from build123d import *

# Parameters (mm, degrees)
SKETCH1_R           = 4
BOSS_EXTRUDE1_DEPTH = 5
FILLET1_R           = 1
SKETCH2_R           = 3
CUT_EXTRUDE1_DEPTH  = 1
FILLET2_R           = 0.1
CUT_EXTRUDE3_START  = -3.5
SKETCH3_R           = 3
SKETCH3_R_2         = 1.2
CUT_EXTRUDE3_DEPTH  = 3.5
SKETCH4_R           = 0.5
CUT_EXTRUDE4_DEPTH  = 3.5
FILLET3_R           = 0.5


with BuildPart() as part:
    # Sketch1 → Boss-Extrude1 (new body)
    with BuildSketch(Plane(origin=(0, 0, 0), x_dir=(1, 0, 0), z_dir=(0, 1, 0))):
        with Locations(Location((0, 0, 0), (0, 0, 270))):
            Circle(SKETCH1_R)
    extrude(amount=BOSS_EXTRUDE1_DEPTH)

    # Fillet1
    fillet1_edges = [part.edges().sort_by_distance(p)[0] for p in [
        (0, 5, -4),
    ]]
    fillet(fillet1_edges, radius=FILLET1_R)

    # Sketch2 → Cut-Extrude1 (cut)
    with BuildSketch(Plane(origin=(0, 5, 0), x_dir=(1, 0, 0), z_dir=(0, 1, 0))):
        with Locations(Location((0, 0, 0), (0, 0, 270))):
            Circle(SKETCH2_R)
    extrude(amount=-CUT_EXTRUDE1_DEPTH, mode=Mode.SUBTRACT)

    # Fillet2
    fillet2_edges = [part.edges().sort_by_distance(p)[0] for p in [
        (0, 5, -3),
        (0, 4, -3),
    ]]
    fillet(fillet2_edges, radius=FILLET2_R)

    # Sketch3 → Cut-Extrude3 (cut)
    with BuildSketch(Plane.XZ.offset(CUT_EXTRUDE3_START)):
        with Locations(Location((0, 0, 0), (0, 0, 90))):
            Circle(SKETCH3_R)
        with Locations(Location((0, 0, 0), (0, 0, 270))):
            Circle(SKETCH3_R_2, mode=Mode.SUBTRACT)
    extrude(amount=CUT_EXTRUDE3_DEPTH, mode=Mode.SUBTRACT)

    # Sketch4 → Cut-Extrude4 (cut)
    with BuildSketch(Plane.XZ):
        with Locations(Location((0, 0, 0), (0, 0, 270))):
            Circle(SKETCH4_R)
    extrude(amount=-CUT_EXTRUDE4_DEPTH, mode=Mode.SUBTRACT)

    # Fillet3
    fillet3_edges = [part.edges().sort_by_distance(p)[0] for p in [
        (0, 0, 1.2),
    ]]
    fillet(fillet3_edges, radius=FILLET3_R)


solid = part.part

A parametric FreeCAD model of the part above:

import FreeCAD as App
import Part
import Sketcher

V = App.Vector
Q = App.Units.Quantity


def edges_at(feature, points):
    """Names of the edges that pass closest to the given points."""
    edges = feature.Shape.Edges
    near = lambda p: min(range(len(edges)), key=lambda i: edges[i].distToShape(Part.Vertex(*p))[0])
    return sorted({f"Edge{near(p) + 1}" for p in points})

doc = App.newDocument("Part")
params = doc.addObject("Spreadsheet::Sheet", "Params")
for row, (alias, value) in enumerate([
    ("sketch1_diameter", "8 mm"),
    ("pad1_length", "5 mm"),
    ("fillet_radius", "1 mm"),
    ("sketch2_diameter", "6 mm"),
    ("pocket1_length", "1 mm"),
    ("fillet2_radius", "0.1 mm"),
    ("sketch3_diameter", "6 mm"),
    ("sketch3_diameter2", "2.4 mm"),
    ("pocket2_length", "3.5 mm"),
    ("sketch4_diameter", "1 mm"),
    ("pocket3_length", "3.5 mm"),
    ("fillet3_radius", "0.5 mm"),
], start=1):
    params.set(f"A{row}", alias)
    params.set(f"B{row}", "=" + value)
    params.setAlias(f"B{row}", alias)

body = doc.addObject("PartDesign::Body", "Body")

# Sketch on XZ plane
sketch1 = doc.addObject("Sketcher::SketchObject", "Sketch")
body.addObject(sketch1)
sketch1.AttachmentSupport = (doc.XZ_Plane, [""])
sketch1.MapMode = "FlatFace"
sketch1.addGeometry(Part.Circle(V(0, 0, 0), V(0, 0, 1), 4), False)
sketch1.addConstraint(Sketcher.Constraint("Coincident", 0, 3, -1, 1))
sketch1.addConstraint(Sketcher.Constraint("Diameter", 0, Q("8 mm")))
sketch1.setExpression("Constraints[1]", "Params.sketch1_diameter")
pad1 = doc.addObject("PartDesign::Pad", "Pad")
body.addObject(pad1)
pad1.Profile = sketch1
pad1.setExpression("Length", "Params.pad1_length")
pad1.Reversed = True
doc.recompute()

fillet = doc.addObject("PartDesign::Fillet", "Fillet")
body.addObject(fillet)
fillet.Base = (pad1, edges_at(pad1, [(0, 5, -4)]))
fillet.setExpression("Radius", "Params.fillet_radius")

# Sketch on XZ plane
sketch2 = doc.addObject("Sketcher::SketchObject", "Sketch001")
body.addObject(sketch2)
sketch2.AttachmentSupport = (doc.XZ_Plane, [""])
sketch2.MapMode = "FlatFace"
sketch2.AttachmentOffset = App.Placement(V(0, 0, -5), App.Rotation())
sketch2.addGeometry(Part.Circle(V(0, 0, 0), V(0, 0, 1), 3), False)
sketch2.addConstraint(Sketcher.Constraint("Coincident", 0, 3, -1, 1))
sketch2.addConstraint(Sketcher.Constraint("Diameter", 0, Q("6 mm")))
sketch2.setExpression("Constraints[1]", "Params.sketch2_diameter")
pocket1 = doc.addObject("PartDesign::Pocket", "Pocket")
body.addObject(pocket1)
pocket1.Profile = sketch2
pocket1.setExpression("Length", "Params.pocket1_length")
pocket1.Reversed = True
doc.recompute()

fillet2 = doc.addObject("PartDesign::Fillet", "Fillet001")
body.addObject(fillet2)
fillet2.Base = (pocket1, edges_at(pocket1, [(0, 5, -3), (0, 4, -3)]))
fillet2.setExpression("Radius", "Params.fillet2_radius")

# Sketch on XZ plane
sketch3 = doc.addObject("Sketcher::SketchObject", "Sketch002")
body.addObject(sketch3)
sketch3.AttachmentSupport = (doc.XZ_Plane, [""])
sketch3.MapMode = "FlatFace"
sketch3.AttachmentOffset = App.Placement(V(0, 0, -3.5), App.Rotation())
sketch3.addGeometry(Part.Circle(V(0, 0, 0), V(0, 0, 1), 3), False)
sketch3.addGeometry(Part.Circle(V(0, 0, 0), V(0, 0, 1), 1.2), False)
sketch3.addConstraint(Sketcher.Constraint("Coincident", 0, 3, -1, 1))
sketch3.addConstraint(Sketcher.Constraint("Coincident", 1, 3, -1, 1))
sketch3.addConstraint(Sketcher.Constraint("Diameter", 0, Q("6 mm")))
sketch3.addConstraint(Sketcher.Constraint("Diameter", 1, Q("2.4 mm")))
sketch3.setExpression("Constraints[2]", "Params.sketch3_diameter")
sketch3.setExpression("Constraints[3]", "Params.sketch3_diameter2")
pocket2 = doc.addObject("PartDesign::Pocket", "Pocket001")
body.addObject(pocket2)
pocket2.Profile = sketch3
pocket2.setExpression("Length", "Params.pocket2_length")
pocket2.Reversed = True

# Sketch on XZ plane
sketch4 = doc.addObject("Sketcher::SketchObject", "Sketch003")
body.addObject(sketch4)
sketch4.AttachmentSupport = (doc.XZ_Plane, [""])
sketch4.MapMode = "FlatFace"
sketch4.addGeometry(Part.Circle(V(0, 0, 0), V(0, 0, 1), 0.5), False)
sketch4.addConstraint(Sketcher.Constraint("Coincident", 0, 3, -1, 1))
sketch4.addConstraint(Sketcher.Constraint("Diameter", 0, Q("1 mm")))
sketch4.setExpression("Constraints[1]", "Params.sketch4_diameter")
pocket3 = doc.addObject("PartDesign::Pocket", "Pocket002")
body.addObject(pocket3)
pocket3.Profile = sketch4
pocket3.setExpression("Length", "Params.pocket3_length")
doc.recompute()

fillet3 = doc.addObject("PartDesign::Fillet", "Fillet002")
body.addObject(fillet3)
fillet3.Base = (pocket3, edges_at(pocket3, [(0, 0, 1.2)]))
fillet3.setExpression("Radius", "Params.fillet3_radius")

doc.recompute()
